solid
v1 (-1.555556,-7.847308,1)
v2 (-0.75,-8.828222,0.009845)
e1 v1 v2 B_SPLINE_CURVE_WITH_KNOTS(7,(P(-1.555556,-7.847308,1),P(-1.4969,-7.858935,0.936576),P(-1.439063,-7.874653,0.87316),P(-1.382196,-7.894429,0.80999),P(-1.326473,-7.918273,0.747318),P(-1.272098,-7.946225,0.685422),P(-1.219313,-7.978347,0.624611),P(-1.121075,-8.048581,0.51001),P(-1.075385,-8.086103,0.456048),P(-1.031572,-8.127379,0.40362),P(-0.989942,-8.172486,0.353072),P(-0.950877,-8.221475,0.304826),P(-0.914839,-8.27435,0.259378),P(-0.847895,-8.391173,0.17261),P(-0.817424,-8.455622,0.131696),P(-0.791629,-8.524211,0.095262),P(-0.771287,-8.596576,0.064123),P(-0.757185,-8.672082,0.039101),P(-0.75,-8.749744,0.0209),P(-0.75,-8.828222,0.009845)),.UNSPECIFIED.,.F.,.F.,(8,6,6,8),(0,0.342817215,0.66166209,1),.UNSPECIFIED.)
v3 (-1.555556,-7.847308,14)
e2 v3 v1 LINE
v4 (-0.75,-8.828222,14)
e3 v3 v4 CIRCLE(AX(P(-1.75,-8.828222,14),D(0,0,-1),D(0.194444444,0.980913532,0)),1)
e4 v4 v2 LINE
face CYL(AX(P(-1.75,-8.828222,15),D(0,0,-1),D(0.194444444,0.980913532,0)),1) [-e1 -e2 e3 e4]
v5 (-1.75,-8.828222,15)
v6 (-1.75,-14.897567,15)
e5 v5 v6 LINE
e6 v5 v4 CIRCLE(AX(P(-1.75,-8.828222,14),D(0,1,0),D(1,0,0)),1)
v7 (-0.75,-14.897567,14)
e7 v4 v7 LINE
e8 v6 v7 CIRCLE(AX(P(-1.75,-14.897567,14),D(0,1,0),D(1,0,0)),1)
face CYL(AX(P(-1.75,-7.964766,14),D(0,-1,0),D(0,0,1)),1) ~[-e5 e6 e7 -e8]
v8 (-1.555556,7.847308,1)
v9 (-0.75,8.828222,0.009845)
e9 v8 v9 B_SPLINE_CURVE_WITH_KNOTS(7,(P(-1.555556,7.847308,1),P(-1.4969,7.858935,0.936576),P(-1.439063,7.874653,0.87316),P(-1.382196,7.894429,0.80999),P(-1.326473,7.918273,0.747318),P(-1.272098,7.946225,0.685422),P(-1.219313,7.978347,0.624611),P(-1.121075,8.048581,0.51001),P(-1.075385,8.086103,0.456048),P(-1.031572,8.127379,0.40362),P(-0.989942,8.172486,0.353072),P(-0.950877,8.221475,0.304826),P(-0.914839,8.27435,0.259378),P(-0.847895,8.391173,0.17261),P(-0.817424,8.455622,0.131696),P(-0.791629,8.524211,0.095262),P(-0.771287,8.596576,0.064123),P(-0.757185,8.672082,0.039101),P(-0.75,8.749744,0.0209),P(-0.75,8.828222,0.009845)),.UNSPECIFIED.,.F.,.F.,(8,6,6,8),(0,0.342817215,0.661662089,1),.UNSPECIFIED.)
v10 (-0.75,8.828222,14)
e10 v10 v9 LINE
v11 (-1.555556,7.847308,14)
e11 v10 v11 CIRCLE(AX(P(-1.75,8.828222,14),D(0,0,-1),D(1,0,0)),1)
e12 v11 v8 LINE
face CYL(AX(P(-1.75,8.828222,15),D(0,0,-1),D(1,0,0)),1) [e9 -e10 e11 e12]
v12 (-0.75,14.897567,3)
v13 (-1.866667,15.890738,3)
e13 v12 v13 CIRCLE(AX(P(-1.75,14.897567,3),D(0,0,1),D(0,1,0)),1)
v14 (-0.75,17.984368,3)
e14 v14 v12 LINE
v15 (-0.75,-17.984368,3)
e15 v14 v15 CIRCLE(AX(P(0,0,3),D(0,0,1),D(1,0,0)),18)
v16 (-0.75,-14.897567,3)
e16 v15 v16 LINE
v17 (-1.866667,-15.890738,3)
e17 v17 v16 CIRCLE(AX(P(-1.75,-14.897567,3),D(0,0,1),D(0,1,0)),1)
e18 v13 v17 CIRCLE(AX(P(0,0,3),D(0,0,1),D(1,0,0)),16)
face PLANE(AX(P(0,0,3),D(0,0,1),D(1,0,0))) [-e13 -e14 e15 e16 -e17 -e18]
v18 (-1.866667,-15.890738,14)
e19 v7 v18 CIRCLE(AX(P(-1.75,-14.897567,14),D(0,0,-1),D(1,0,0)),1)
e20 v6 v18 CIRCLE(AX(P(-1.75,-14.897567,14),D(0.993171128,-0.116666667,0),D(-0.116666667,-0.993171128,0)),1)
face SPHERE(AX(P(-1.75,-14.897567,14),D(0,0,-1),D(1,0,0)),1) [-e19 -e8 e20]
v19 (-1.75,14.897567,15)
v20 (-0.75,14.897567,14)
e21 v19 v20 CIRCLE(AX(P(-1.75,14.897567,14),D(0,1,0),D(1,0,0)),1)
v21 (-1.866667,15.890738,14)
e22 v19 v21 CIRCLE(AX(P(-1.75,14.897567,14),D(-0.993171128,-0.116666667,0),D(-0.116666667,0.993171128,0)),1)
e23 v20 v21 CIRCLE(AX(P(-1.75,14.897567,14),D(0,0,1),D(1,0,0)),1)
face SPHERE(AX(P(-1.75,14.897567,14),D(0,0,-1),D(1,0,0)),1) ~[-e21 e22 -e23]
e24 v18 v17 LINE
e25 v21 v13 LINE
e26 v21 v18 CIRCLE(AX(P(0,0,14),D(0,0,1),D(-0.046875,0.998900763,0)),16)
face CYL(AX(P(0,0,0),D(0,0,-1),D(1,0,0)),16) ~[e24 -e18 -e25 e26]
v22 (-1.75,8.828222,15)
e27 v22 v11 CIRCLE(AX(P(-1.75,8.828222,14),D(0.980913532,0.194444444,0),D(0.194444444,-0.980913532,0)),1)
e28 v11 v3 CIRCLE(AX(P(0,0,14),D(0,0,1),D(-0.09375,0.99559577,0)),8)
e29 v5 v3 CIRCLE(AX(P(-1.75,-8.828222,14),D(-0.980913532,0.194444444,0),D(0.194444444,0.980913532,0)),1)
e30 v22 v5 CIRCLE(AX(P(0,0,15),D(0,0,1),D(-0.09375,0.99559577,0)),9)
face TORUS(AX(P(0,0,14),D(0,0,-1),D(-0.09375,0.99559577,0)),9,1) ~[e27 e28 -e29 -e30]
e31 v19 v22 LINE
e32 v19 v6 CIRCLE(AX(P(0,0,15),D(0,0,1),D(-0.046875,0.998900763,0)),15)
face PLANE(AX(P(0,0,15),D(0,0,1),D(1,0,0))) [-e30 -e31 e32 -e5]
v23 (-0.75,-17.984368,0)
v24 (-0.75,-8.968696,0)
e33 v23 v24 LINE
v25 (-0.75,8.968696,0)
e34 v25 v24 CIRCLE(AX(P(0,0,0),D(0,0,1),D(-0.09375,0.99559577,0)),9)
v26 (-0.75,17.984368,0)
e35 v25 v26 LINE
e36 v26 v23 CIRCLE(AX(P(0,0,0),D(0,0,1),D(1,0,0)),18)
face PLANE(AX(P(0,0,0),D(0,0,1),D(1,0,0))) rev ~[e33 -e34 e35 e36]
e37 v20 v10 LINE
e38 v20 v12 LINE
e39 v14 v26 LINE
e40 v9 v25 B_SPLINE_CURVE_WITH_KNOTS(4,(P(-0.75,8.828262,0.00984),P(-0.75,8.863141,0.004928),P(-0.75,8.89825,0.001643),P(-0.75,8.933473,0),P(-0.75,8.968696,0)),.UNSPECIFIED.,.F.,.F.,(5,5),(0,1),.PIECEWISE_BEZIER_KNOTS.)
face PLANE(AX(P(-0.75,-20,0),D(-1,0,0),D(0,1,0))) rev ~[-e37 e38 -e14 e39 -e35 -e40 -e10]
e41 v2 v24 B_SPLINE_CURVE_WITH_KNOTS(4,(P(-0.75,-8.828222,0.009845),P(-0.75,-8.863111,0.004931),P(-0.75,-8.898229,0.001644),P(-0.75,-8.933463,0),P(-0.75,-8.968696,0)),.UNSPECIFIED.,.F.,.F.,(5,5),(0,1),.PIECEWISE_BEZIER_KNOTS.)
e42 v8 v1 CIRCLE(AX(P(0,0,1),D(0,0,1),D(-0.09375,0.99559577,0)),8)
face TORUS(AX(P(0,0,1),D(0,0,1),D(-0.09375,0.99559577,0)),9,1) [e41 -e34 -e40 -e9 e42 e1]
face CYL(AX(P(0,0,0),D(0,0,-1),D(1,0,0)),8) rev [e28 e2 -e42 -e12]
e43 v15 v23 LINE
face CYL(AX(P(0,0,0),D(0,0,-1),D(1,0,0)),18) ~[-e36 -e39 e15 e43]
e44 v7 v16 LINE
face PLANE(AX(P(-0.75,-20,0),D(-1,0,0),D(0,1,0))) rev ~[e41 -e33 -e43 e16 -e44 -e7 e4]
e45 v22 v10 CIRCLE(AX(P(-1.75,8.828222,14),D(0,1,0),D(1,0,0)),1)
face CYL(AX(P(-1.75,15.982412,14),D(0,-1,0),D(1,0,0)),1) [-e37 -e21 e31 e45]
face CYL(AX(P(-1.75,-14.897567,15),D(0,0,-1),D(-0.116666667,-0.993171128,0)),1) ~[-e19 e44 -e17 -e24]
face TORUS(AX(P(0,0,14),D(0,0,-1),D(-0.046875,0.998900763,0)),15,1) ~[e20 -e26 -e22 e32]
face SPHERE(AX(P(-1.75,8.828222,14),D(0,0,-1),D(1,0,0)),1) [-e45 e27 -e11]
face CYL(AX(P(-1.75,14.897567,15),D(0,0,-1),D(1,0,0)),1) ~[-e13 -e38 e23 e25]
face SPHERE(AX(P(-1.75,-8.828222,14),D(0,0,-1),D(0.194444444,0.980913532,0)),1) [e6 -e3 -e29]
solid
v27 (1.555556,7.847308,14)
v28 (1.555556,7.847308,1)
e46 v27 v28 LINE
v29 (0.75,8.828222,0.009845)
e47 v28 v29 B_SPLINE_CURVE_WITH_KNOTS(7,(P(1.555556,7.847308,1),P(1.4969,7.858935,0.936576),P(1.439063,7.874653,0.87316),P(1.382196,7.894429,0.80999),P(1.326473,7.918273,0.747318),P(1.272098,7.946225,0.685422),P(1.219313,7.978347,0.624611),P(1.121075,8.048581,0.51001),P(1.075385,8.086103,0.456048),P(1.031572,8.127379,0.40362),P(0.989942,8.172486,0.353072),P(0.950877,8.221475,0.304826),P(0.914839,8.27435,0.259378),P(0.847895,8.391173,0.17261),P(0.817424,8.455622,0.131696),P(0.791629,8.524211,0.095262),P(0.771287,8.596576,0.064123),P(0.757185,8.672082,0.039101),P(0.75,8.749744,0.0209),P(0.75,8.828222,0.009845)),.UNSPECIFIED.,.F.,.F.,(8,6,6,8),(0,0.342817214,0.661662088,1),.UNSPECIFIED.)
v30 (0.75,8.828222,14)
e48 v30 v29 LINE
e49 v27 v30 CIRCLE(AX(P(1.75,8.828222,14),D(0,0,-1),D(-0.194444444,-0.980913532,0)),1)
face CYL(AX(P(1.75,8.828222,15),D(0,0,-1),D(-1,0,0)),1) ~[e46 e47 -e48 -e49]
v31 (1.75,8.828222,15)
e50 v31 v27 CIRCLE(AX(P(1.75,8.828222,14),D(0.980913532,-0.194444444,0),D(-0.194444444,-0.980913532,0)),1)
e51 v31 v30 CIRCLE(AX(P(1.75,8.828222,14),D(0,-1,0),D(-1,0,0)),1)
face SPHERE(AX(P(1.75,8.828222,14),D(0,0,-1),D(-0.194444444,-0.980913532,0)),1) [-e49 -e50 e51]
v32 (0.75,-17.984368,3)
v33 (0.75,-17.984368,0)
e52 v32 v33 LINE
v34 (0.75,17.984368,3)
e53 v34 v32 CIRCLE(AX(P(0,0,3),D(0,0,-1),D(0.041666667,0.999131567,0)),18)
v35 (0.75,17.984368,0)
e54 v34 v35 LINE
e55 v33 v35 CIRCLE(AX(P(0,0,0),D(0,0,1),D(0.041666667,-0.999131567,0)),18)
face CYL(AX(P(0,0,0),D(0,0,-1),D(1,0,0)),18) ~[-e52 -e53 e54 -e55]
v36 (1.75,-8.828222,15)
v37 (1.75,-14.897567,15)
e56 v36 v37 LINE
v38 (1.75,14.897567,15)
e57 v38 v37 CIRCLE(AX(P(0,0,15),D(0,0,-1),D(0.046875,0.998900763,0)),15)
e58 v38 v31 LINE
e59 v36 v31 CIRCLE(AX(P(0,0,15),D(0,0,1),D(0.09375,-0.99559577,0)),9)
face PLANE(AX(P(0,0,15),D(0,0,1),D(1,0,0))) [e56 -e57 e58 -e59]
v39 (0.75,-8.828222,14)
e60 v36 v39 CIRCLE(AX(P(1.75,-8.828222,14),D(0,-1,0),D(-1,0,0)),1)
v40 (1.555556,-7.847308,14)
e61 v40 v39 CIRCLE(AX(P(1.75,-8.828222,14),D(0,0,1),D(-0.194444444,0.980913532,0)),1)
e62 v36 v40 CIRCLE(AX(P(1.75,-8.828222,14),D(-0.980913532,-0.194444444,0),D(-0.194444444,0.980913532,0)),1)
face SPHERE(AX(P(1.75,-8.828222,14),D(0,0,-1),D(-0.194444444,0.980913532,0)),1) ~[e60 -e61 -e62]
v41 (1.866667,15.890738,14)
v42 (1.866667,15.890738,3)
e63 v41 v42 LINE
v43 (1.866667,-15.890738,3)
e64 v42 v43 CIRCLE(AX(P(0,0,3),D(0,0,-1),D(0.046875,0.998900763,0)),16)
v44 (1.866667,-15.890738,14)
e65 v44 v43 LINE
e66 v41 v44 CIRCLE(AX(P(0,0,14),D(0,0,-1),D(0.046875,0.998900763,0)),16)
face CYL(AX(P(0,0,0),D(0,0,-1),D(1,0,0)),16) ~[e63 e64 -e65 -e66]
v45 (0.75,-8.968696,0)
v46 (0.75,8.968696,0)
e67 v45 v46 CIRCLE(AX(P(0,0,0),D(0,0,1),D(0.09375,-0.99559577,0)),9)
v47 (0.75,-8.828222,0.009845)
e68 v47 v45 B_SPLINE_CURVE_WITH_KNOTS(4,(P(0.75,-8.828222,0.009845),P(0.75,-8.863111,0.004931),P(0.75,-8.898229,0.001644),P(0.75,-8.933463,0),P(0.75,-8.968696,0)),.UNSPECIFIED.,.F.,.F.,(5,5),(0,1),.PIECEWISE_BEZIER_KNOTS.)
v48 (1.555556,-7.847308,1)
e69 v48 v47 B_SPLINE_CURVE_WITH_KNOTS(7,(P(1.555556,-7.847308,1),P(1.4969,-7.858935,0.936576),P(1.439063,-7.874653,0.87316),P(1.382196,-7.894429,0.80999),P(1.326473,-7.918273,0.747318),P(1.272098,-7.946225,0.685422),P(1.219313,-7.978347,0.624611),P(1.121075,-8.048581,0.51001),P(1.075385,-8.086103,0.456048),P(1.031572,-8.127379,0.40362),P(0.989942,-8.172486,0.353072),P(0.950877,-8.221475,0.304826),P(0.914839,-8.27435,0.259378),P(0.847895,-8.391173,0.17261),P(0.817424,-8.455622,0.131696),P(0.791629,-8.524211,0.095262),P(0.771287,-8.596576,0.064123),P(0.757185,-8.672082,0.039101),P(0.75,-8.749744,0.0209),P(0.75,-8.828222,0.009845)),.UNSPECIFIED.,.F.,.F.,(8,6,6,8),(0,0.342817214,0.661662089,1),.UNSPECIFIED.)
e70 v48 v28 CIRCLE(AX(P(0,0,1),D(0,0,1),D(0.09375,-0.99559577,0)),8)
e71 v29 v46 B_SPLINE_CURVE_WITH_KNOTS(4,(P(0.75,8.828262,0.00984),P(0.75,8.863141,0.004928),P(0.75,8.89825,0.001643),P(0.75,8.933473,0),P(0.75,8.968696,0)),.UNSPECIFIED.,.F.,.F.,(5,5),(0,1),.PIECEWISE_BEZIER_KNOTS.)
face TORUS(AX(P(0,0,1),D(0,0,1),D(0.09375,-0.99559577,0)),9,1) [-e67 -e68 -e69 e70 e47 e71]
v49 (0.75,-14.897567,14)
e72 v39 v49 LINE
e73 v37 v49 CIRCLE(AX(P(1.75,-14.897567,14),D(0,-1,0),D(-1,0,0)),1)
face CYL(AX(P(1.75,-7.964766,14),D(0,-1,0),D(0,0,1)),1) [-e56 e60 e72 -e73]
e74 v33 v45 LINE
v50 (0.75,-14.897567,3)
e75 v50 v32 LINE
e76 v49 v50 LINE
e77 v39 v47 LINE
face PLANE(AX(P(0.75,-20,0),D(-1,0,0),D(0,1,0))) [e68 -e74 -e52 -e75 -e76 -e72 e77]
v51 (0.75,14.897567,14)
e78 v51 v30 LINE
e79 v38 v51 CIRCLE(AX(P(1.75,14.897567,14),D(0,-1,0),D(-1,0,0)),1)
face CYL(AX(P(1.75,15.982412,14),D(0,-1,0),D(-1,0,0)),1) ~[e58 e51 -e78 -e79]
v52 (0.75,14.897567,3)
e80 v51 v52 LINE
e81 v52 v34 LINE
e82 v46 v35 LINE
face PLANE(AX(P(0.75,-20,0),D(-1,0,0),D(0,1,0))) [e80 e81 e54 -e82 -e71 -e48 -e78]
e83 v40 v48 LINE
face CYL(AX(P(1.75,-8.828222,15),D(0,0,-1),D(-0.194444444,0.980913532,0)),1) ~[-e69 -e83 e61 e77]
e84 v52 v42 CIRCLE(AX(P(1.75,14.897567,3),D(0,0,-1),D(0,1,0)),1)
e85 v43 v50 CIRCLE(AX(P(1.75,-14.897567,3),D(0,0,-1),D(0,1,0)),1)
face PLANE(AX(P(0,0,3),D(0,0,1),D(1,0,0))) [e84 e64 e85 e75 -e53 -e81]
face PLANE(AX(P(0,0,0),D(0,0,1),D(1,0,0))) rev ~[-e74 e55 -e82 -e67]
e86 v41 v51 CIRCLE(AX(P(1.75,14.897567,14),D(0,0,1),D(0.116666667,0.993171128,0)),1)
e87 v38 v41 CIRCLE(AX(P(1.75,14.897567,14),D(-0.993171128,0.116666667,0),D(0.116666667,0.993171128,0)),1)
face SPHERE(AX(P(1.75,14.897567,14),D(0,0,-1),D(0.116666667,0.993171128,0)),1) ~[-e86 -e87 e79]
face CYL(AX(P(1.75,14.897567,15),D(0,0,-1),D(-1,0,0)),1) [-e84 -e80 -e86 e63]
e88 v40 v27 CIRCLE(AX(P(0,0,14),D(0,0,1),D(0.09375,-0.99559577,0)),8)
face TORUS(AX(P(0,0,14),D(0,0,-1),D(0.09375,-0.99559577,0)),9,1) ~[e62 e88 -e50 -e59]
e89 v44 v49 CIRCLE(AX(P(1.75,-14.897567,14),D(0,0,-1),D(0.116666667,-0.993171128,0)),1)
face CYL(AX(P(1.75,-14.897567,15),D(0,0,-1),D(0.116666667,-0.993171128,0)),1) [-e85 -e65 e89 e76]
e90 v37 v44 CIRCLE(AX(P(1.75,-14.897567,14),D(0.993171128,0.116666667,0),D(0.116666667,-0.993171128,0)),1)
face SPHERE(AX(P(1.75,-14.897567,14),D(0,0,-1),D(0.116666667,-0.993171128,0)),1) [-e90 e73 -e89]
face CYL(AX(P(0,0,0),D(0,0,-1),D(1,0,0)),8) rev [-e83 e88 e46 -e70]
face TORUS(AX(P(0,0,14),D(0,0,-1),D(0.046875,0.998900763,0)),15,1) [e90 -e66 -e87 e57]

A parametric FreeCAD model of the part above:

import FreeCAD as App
import Part
import Sketcher
Q = App.Units.Quantity


def edges_at(feature, points):
    """Names of the edges that pass closest to the given points."""
    edges = feature.Shape.Edges
    near = lambda p: min(range(len(edges)), key=lambda i: edges[i].distToShape(Part.Vertex(*p))[0])
    return sorted({f"Edge{near(p) + 1}" for p in points})


def add_polygon(sketch, points):
    """Adds a closed chain of lines whose ends are joined by coincident constraints."""
    first, n = sketch.GeometryCount, len(points)
    for a, b in zip(points, points[1:] + points[:1]):
        sketch.addGeometry(Part.LineSegment(App.Vector(*a, 0), App.Vector(*b, 0)), False)
    for i in range(n):
        sketch.addConstraint(Sketcher.Constraint("Coincident", first + i, 2, first + (i + 1) % n, 1))

doc = App.newDocument("Part")
body = doc.addObject("PartDesign::Body", "Body")
body.AllowCompound = True

sketch1 = body.newObject("Sketcher::SketchObject", "Sketch")
sketch1.AttachmentSupport = (doc.getObject("XY_Plane"), [""])
sketch1.MapMode = "FlatFace"
sketch1.addGeometry([
    Part.Circle(App.Vector(0, 0, 0), App.Vector(0, 0, 1), 16),
    Part.Circle(App.Vector(0, 0, 0), App.Vector(0, 0, 1), 8),
], False)
sketch1.addConstraint([
    Sketcher.Constraint("Coincident", 0, 3, -1, 1),
    Sketcher.Constraint("Coincident", 1, 3, -1, 1),
    Sketcher.Constraint("Diameter", 0, Q("32 mm")),
    Sketcher.Constraint("Diameter", 1, Q("16 mm")),
])
pad1 = body.newObject("PartDesign::Pad", "Pad")
pad1.Profile = sketch1
pad1.Length = 15

sketch2 = body.newObject("Sketcher::SketchObject", "Sketch001")
sketch2.AttachmentSupport = (doc.getObject("XY_Plane"), [""])
sketch2.MapMode = "FlatFace"
sketch2.addGeometry([
    Part.Circle(App.Vector(0, 0, 0), App.Vector(0, 0, 1), 18),
    Part.Circle(App.Vector(0, 0, 0), App.Vector(0, 0, 1), 16),
], False)
sketch2.addConstraint([
    Sketcher.Constraint("Coincident", 0, 3, -1, 1),
    Sketcher.Constraint("Coincident", 1, 3, -1, 1),
    Sketcher.Constraint("Diameter", 0, Q("36 mm")),
    Sketcher.Constraint("Diameter", 1, Q("32 mm")),
])
pad2 = body.newObject("PartDesign::Pad", "Pad001")
pad2.Profile = sketch2
pad2.Length = 3

sketch3 = body.newObject("Sketcher::SketchObject", "Sketch002")
sketch3.AttachmentSupport = (doc.getObject("XY_Plane"), [""])
sketch3.MapMode = "FlatFace"
add_polygon(sketch3, [(-0.75, 20), (-0.75, -20), (0.75, -20), (0.75, 20)])
sketch3.addConstraint([
    Sketcher.Constraint("Vertical", 0),
    Sketcher.Constraint("Horizontal", 1),
    Sketcher.Constraint("Vertical", 2),
    Sketcher.Constraint("Horizontal", 3),
    Sketcher.Constraint("Symmetric", 0, 2, 2, 2, -1, 1),
    Sketcher.Constraint("DistanceY", 0, 2, 0, 1, Q("40 mm")),
    Sketcher.Constraint("DistanceX", 1, 1, 1, 2, Q("1.5 mm")),
])
pocket1 = body.newObject("PartDesign::Pocket", "Pocket")
pocket1.Profile = sketch3
pocket1.Type = "ThroughAll"
pocket1.Reversed = True
doc.recompute()

fillet = body.newObject("PartDesign::Fillet", "Fillet")
fillet.Base = (pocket1, edges_at(pocket1, [
    (-8, 0, 0),
    (8, 0, 0),
    (-0.75, 11.974, 15),
    (-8, 0, 15),
    (-0.75, -11.974, 15),
    (-16, 0, 15),
    (8, 0, 15),
    (16, 0, 15),
    (0.75, -11.974, 15),
    (0.75, 11.974, 15),
    (-0.75, -15.982, 9),
    (-0.75, 15.982, 9),
    (0.75, 15.982, 9),
    (0.75, -15.982, 9),
    (-0.75, -7.965, 7.5),
    (-0.75, 7.965, 7.5),
    (0.75, 7.965, 7.5),
    (0.75, -7.965, 7.5),
]))
fillet.Radius = 1

doc.recompute()
